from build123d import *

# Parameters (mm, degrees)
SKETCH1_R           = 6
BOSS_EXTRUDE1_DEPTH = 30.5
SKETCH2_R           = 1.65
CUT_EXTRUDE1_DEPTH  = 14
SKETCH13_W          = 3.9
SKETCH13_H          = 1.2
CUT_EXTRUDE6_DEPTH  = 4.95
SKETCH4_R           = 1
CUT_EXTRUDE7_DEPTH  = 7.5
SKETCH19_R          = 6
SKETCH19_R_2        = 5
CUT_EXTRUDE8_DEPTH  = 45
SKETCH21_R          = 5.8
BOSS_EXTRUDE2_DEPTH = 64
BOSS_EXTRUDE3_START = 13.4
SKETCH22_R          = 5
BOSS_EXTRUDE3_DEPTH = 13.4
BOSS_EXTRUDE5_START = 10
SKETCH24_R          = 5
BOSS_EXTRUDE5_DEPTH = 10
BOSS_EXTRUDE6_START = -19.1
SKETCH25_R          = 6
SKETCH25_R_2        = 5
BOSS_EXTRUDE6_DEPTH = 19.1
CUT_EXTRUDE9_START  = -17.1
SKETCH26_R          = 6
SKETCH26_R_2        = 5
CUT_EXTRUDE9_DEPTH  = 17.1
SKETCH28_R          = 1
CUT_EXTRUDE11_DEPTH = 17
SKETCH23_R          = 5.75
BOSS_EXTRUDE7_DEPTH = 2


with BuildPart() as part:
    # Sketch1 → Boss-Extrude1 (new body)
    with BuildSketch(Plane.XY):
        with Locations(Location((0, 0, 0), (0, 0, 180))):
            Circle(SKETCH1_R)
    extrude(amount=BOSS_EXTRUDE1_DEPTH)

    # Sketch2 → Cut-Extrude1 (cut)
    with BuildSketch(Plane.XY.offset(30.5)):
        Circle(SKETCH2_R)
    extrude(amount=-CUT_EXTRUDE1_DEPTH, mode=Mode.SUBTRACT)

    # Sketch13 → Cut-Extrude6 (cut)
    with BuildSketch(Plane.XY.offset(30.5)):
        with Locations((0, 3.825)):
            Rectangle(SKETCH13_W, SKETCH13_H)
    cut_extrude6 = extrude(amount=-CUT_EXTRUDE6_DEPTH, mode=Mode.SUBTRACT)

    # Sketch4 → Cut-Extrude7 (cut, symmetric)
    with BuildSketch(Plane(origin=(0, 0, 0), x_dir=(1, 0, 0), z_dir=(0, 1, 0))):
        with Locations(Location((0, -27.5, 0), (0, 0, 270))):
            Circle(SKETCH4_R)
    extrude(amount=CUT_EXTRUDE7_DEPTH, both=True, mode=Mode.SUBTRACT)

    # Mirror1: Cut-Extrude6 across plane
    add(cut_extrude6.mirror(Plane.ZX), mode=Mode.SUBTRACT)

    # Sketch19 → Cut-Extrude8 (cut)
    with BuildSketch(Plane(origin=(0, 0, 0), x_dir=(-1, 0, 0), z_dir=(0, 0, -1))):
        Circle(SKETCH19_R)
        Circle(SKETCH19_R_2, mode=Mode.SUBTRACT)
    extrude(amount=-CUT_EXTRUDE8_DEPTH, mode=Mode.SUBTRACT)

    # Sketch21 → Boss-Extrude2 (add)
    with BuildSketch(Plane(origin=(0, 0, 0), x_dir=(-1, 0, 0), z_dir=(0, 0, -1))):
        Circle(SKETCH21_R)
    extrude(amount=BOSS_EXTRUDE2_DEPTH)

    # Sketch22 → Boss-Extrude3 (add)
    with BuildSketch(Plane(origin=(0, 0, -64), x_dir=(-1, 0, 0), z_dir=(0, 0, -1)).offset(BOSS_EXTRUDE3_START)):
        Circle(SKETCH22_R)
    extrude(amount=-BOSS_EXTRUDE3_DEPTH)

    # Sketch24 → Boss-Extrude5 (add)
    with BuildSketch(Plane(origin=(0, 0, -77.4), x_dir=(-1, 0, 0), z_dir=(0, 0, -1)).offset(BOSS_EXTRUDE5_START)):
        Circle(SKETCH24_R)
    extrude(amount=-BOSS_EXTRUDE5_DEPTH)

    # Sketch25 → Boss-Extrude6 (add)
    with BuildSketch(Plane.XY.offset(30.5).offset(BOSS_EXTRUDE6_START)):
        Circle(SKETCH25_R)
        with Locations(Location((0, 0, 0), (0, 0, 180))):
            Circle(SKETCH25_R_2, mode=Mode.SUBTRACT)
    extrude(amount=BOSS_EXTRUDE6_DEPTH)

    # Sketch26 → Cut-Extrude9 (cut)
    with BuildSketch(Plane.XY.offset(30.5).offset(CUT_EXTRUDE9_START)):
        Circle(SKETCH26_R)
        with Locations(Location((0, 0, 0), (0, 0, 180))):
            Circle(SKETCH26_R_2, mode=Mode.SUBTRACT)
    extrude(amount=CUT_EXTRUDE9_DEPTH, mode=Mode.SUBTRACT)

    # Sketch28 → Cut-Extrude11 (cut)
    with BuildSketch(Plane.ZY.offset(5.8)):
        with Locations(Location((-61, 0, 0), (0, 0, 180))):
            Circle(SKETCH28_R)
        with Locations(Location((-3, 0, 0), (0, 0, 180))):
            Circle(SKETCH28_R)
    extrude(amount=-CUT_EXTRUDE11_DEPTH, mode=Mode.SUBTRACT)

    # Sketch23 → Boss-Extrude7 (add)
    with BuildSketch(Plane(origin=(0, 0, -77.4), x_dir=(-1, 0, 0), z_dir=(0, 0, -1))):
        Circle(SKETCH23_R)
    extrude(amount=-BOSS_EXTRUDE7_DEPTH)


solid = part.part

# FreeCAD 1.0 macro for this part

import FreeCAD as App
import Part
import Sketcher
Q = App.Units.Quantity


def add_polygon(sketch, points):
    """Adds a closed chain of lines whose ends are joined by coincident constraints."""
    first, n = sketch.GeometryCount, len(points)
    for a, b in zip(points, points[1:] + points[:1]):
        sketch.addGeometry(Part.LineSegment(App.Vector(*a, 0), App.Vector(*b, 0)), False)
    for i in range(n):
        sketch.addConstraint(Sketcher.Constraint("Coincident", first + i, 2, first + (i + 1) % n, 1))

doc = App.newDocument("Part")
body = doc.addObject("PartDesign::Body", "Body")

# Sketch on XY plane
sketch1 = body.newObject("Sketcher::SketchObject", "Sketch")
sketch1.AttachmentSupport = (doc.getObject("XY_Plane"), [""])
sketch1.MapMode = "FlatFace"
sketch1.addGeometry(Part.Circle(App.Vector(0, 0, 0), App.Vector(0, 0, 1), 6), False)
sketch1.addConstraint(Sketcher.Constraint("Coincident", 0, 3, -1, 1))
sketch1.addConstraint(Sketcher.Constraint("Diameter", 0, Q("12 mm")))
pad1 = body.newObject("PartDesign::Pad", "Pad")
pad1.Profile = sketch1
pad1.Length = 30.5

# Sketch on XY plane
sketch2 = body.newObject("Sketcher::SketchObject", "Sketch001")
sketch2.AttachmentSupport = (doc.getObject("XY_Plane"), [""])
sketch2.MapMode = "FlatFace"
sketch2.AttachmentOffset = App.Placement(App.Vector(0, 0, 30.5), App.Rotation())
sketch2.addGeometry(Part.Circle(App.Vector(0, 0, 0), App.Vector(0, 0, 1), 1.6), False)
sketch2.addConstraint(Sketcher.Constraint("Coincident", 0, 3, -1, 1))
sketch2.addConstraint(Sketcher.Constraint("Diameter", 0, Q("3.3 mm")))
pocket1 = body.newObject("PartDesign::Pocket", "Pocket")
pocket1.Profile = sketch2
pocket1.Length = 14

# Sketch on XY plane
sketch3 = body.newObject("Sketcher::SketchObject", "Sketch002")
sketch3.AttachmentSupport = (doc.getObject("XY_Plane"), [""])
sketch3.MapMode = "FlatFace"
sketch3.AttachmentOffset = App.Placement(App.Vector(0, 0, 30.5), App.Rotation())
add_polygon(sketch3, [(-1.9, 4.4), (-1.9, 3.2), (1.9, 3.2), (1.9, 4.4)])  # lines 0-3
sketch3.addConstraint(Sketcher.Constraint("Vertical", 0))
sketch3.addConstraint(Sketcher.Constraint("Horizontal", 1))
sketch3.addConstraint(Sketcher.Constraint("Vertical", 2))
sketch3.addConstraint(Sketcher.Constraint("Horizontal", 3))
sketch3.addConstraint(Sketcher.Constraint("DistanceX", 1, 1, 1, 2, Q("3.9 mm")))
sketch3.addConstraint(Sketcher.Constraint("DistanceY", 0, 2, 0, 1, Q("1.2 mm")))
sketch3.addConstraint(Sketcher.Constraint("DistanceX", 0, 2, -1, 1, Q("1.95 mm")))
sketch3.addConstraint(Sketcher.Constraint("DistanceY", -1, 1, 0, 2, Q("3.225 mm")))
pocket2 = body.newObject("PartDesign::Pocket", "Pocket001")
pocket2.Profile = sketch3
pocket2.Length = 4.95

# Sketch on XZ plane
sketch4 = body.newObject("Sketcher::SketchObject", "Sketch003")
sketch4.AttachmentSupport = (doc.getObject("XZ_Plane"), [""])
sketch4.MapMode = "FlatFace"
sketch4.addGeometry(Part.Circle(App.Vector(0, 27.5, 0), App.Vector(0, 0, 1), 1), False)
sketch4.addConstraint(Sketcher.Constraint("PointOnObject", 0, 3, -2))
sketch4.addConstraint(Sketcher.Constraint("Diameter", 0, Q("2 mm")))
sketch4.addConstraint(Sketcher.Constraint("DistanceY", -1, 1, 0, 3, Q("27.5 mm")))
pocket3 = body.newObject("PartDesign::Pocket", "Pocket002")
pocket3.Profile = sketch4
pocket3.Length = 15
pocket3.Midplane = True
doc.recompute()

mirrored = body.newObject("PartDesign::Mirrored", "Mirrored")
mirrored.Originals = [pocket2]
mirrored.MirrorPlane = (doc.getObject("XZ_Plane"), [""])
body.Tip = mirrored

# Sketch on XY plane
sketch5 = body.newObject("Sketcher::SketchObject", "Sketch004")
sketch5.AttachmentSupport = (doc.getObject("XY_Plane"), [""])
sketch5.MapMode = "FlatFace"
sketch5.addGeometry(Part.Circle(App.Vector(0, 0, 0), App.Vector(0, 0, 1), 6), False)
sketch5.addGeometry(Part.Circle(App.Vector(0, 0, 0), App.Vector(0, 0, 1), 5), False)
sketch5.addConstraint(Sketcher.Constraint("Coincident", 0, 3, -1, 1))
sketch5.addConstraint(Sketcher.Constraint("Coincident", 1, 3, -1, 1))
sketch5.addConstraint(Sketcher.Constraint("Diameter", 0, Q("12 mm")))
sketch5.addConstraint(Sketcher.Constraint("Diameter", 1, Q("10 mm")))
pocket4 = body.newObject("PartDesign::Pocket", "Pocket003")
pocket4.Profile = sketch5
pocket4.Length = 45
pocket4.Reversed = True

# Sketch on XY plane
sketch6 = body.newObject("Sketcher::SketchObject", "Sketch005")
sketch6.AttachmentSupport = (doc.getObject("XY_Plane"), [""])
sketch6.MapMode = "FlatFace"
sketch6.addGeometry(Part.Circle(App.Vector(0, 0, 0), App.Vector(0, 0, 1), 6), False)
sketch6.addConstraint(Sketcher.Constraint("Coincident", 0, 3, -1, 1))
sketch6.addConstraint(Sketcher.Constraint("Diameter", 0, Q("11.6 mm")))
pad2 = body.newObject("PartDesign::Pad", "Pad001")
pad2.Profile = sketch6
pad2.Length = 64
pad2.Reversed = True

# Sketch on XY plane
sketch7 = body.newObject("Sketcher::SketchObject", "Sketch006")
sketch7.AttachmentSupport = (doc.getObject("XY_Plane"), [""])
sketch7.MapMode = "FlatFace"
sketch7.AttachmentOffset = App.Placement(App.Vector(0, 0, -77.4), App.Rotation())
sketch7.addGeometry(Part.Circle(App.Vector(0, 0, 0), App.Vector(0, 0, 1), 5), False)
sketch7.addConstraint(Sketcher.Constraint("Coincident", 0, 3, -1, 1))
sketch7.addConstraint(Sketcher.Constraint("Diameter", 0, Q("10 mm")))
pad3 = body.newObject("PartDesign::Pad", "Pad002")
pad3.Profile = sketch7
pad3.Length = 13.4

# Sketch on XY plane
sketch8 = body.newObject("Sketcher::SketchObject", "Sketch007")
sketch8.AttachmentSupport = (doc.getObject("XY_Plane"), [""])
sketch8.MapMode = "FlatFace"
sketch8.AttachmentOffset = App.Placement(App.Vector(0, 0, -87.4), App.Rotation())
sketch8.addGeometry(Part.Circle(App.Vector(0, 0, 0), App.Vector(0, 0, 1), 5), False)
sketch8.addConstraint(Sketcher.Constraint("Coincident", 0, 3, -1, 1))
sketch8.addConstraint(Sketcher.Constraint("Diameter", 0, Q("10 mm")))
pad4 = body.newObject("PartDesign::Pad", "Pad003")
pad4.Profile = sketch8
pad4.Length = 10

# Sketch on XY plane
sketch9 = body.newObject("Sketcher::SketchObject", "Sketch008")
sketch9.AttachmentSupport = (doc.getObject("XY_Plane"), [""])
sketch9.MapMode = "FlatFace"
sketch9.AttachmentOffset = App.Placement(App.Vector(0, 0, 11.4), App.Rotation())
sketch9.addGeometry(Part.Circle(App.Vector(0, 0, 0), App.Vector(0, 0, 1), 6), False)
sketch9.addGeometry(Part.Circle(App.Vector(0, 0, 0), App.Vector(0, 0, 1), 5), False)
sketch9.addConstraint(Sketcher.Constraint("Coincident", 0, 3, -1, 1))
sketch9.addConstraint(Sketcher.Constraint("Coincident", 1, 3, -1, 1))
sketch9.addConstraint(Sketcher.Constraint("Diameter", 0, Q("12 mm")))
sketch9.addConstraint(Sketcher.Constraint("Diameter", 1, Q("10 mm")))
pad5 = body.newObject("PartDesign::Pad", "Pad004")
pad5.Profile = sketch9
pad5.Length = 19.1

# Sketch on XY plane
sketch10 = body.newObject("Sketcher::SketchObject", "Sketch009")
sketch10.AttachmentSupport = (doc.getObject("XY_Plane"), [""])
sketch10.MapMode = "FlatFace"
sketch10.AttachmentOffset = App.Placement(App.Vector(0, 0, 13.4), App.Rotation())
sketch10.addGeometry(Part.Circle(App.Vector(0, 0, 0), App.Vector(0, 0, 1), 6), False)
sketch10.addGeometry(Part.Circle(App.Vector(0, 0, 0), App.Vector(0, 0, 1), 5), False)
sketch10.addConstraint(Sketcher.Constraint("Coincident", 0, 3, -1, 1))
sketch10.addConstraint(Sketcher.Constraint("Coincident", 1, 3, -1, 1))
sketch10.addConstraint(Sketcher.Constraint("Diameter", 0, Q("12 mm")))
sketch10.addConstraint(Sketcher.Constraint("Diameter", 1, Q("10 mm")))
pocket5 = body.newObject("PartDesign::Pocket", "Pocket004")
pocket5.Profile = sketch10
pocket5.Length = 17.1
pocket5.Reversed = True

# Sketch on YZ plane
sketch11 = body.newObject("Sketcher::SketchObject", "Sketch010")
sketch11.AttachmentSupport = (doc.getObject("YZ_Plane"), [""])
sketch11.MapMode = "FlatFace"
sketch11.AttachmentOffset = App.Placement(App.Vector(0, 0, -5.8), App.Rotation())
sketch11.addGeometry(Part.Circle(App.Vector(0, -61, 0), App.Vector(0, 0, 1), 1), False)
sketch11.addGeometry(Part.Circle(App.Vector(0, -3, 0), App.Vector(0, 0, 1), 1), False)
sketch11.addConstraint(Sketcher.Constraint("Equal", 0, 1))
sketch11.addConstraint(Sketcher.Constraint("PointOnObject", 0, 3, -2))
sketch11.addConstraint(Sketcher.Constraint("PointOnObject", 1, 3, -2))
sketch11.addConstraint(Sketcher.Constraint("Diameter", 0, Q("2 mm")))
sketch11.addConstraint(Sketcher.Constraint("DistanceY", 0, 3, -1, 1, Q("61 mm")))
sketch11.addConstraint(Sketcher.Constraint("DistanceY", 1, 3, -1, 1, Q("3 mm")))
pocket6 = body.newObject("PartDesign::Pocket", "Pocket005")
pocket6.Profile = sketch11
pocket6.Length = 17
pocket6.Reversed = True

# Sketch on XY plane
sketch12 = body.newObject("Sketcher::SketchObject", "Sketch011")
sketch12.AttachmentSupport = (doc.getObject("XY_Plane"), [""])
sketch12.MapMode = "FlatFace"
sketch12.AttachmentOffset = App.Placement(App.Vector(0, 0, -77.4), App.Rotation())
sketch12.addGeometry(Part.Circle(App.Vector(0, 0, 0), App.Vector(0, 0, 1), 6), False)
sketch12.addConstraint(Sketcher.Constraint("Coincident", 0, 3, -1, 1))
sketch12.addConstraint(Sketcher.Constraint("Diameter", 0, Q("11.5 mm")))
pad6 = body.newObject("PartDesign::Pad", "Pad005")
pad6.Profile = sketch12
pad6.Length = 2

doc.recompute()
